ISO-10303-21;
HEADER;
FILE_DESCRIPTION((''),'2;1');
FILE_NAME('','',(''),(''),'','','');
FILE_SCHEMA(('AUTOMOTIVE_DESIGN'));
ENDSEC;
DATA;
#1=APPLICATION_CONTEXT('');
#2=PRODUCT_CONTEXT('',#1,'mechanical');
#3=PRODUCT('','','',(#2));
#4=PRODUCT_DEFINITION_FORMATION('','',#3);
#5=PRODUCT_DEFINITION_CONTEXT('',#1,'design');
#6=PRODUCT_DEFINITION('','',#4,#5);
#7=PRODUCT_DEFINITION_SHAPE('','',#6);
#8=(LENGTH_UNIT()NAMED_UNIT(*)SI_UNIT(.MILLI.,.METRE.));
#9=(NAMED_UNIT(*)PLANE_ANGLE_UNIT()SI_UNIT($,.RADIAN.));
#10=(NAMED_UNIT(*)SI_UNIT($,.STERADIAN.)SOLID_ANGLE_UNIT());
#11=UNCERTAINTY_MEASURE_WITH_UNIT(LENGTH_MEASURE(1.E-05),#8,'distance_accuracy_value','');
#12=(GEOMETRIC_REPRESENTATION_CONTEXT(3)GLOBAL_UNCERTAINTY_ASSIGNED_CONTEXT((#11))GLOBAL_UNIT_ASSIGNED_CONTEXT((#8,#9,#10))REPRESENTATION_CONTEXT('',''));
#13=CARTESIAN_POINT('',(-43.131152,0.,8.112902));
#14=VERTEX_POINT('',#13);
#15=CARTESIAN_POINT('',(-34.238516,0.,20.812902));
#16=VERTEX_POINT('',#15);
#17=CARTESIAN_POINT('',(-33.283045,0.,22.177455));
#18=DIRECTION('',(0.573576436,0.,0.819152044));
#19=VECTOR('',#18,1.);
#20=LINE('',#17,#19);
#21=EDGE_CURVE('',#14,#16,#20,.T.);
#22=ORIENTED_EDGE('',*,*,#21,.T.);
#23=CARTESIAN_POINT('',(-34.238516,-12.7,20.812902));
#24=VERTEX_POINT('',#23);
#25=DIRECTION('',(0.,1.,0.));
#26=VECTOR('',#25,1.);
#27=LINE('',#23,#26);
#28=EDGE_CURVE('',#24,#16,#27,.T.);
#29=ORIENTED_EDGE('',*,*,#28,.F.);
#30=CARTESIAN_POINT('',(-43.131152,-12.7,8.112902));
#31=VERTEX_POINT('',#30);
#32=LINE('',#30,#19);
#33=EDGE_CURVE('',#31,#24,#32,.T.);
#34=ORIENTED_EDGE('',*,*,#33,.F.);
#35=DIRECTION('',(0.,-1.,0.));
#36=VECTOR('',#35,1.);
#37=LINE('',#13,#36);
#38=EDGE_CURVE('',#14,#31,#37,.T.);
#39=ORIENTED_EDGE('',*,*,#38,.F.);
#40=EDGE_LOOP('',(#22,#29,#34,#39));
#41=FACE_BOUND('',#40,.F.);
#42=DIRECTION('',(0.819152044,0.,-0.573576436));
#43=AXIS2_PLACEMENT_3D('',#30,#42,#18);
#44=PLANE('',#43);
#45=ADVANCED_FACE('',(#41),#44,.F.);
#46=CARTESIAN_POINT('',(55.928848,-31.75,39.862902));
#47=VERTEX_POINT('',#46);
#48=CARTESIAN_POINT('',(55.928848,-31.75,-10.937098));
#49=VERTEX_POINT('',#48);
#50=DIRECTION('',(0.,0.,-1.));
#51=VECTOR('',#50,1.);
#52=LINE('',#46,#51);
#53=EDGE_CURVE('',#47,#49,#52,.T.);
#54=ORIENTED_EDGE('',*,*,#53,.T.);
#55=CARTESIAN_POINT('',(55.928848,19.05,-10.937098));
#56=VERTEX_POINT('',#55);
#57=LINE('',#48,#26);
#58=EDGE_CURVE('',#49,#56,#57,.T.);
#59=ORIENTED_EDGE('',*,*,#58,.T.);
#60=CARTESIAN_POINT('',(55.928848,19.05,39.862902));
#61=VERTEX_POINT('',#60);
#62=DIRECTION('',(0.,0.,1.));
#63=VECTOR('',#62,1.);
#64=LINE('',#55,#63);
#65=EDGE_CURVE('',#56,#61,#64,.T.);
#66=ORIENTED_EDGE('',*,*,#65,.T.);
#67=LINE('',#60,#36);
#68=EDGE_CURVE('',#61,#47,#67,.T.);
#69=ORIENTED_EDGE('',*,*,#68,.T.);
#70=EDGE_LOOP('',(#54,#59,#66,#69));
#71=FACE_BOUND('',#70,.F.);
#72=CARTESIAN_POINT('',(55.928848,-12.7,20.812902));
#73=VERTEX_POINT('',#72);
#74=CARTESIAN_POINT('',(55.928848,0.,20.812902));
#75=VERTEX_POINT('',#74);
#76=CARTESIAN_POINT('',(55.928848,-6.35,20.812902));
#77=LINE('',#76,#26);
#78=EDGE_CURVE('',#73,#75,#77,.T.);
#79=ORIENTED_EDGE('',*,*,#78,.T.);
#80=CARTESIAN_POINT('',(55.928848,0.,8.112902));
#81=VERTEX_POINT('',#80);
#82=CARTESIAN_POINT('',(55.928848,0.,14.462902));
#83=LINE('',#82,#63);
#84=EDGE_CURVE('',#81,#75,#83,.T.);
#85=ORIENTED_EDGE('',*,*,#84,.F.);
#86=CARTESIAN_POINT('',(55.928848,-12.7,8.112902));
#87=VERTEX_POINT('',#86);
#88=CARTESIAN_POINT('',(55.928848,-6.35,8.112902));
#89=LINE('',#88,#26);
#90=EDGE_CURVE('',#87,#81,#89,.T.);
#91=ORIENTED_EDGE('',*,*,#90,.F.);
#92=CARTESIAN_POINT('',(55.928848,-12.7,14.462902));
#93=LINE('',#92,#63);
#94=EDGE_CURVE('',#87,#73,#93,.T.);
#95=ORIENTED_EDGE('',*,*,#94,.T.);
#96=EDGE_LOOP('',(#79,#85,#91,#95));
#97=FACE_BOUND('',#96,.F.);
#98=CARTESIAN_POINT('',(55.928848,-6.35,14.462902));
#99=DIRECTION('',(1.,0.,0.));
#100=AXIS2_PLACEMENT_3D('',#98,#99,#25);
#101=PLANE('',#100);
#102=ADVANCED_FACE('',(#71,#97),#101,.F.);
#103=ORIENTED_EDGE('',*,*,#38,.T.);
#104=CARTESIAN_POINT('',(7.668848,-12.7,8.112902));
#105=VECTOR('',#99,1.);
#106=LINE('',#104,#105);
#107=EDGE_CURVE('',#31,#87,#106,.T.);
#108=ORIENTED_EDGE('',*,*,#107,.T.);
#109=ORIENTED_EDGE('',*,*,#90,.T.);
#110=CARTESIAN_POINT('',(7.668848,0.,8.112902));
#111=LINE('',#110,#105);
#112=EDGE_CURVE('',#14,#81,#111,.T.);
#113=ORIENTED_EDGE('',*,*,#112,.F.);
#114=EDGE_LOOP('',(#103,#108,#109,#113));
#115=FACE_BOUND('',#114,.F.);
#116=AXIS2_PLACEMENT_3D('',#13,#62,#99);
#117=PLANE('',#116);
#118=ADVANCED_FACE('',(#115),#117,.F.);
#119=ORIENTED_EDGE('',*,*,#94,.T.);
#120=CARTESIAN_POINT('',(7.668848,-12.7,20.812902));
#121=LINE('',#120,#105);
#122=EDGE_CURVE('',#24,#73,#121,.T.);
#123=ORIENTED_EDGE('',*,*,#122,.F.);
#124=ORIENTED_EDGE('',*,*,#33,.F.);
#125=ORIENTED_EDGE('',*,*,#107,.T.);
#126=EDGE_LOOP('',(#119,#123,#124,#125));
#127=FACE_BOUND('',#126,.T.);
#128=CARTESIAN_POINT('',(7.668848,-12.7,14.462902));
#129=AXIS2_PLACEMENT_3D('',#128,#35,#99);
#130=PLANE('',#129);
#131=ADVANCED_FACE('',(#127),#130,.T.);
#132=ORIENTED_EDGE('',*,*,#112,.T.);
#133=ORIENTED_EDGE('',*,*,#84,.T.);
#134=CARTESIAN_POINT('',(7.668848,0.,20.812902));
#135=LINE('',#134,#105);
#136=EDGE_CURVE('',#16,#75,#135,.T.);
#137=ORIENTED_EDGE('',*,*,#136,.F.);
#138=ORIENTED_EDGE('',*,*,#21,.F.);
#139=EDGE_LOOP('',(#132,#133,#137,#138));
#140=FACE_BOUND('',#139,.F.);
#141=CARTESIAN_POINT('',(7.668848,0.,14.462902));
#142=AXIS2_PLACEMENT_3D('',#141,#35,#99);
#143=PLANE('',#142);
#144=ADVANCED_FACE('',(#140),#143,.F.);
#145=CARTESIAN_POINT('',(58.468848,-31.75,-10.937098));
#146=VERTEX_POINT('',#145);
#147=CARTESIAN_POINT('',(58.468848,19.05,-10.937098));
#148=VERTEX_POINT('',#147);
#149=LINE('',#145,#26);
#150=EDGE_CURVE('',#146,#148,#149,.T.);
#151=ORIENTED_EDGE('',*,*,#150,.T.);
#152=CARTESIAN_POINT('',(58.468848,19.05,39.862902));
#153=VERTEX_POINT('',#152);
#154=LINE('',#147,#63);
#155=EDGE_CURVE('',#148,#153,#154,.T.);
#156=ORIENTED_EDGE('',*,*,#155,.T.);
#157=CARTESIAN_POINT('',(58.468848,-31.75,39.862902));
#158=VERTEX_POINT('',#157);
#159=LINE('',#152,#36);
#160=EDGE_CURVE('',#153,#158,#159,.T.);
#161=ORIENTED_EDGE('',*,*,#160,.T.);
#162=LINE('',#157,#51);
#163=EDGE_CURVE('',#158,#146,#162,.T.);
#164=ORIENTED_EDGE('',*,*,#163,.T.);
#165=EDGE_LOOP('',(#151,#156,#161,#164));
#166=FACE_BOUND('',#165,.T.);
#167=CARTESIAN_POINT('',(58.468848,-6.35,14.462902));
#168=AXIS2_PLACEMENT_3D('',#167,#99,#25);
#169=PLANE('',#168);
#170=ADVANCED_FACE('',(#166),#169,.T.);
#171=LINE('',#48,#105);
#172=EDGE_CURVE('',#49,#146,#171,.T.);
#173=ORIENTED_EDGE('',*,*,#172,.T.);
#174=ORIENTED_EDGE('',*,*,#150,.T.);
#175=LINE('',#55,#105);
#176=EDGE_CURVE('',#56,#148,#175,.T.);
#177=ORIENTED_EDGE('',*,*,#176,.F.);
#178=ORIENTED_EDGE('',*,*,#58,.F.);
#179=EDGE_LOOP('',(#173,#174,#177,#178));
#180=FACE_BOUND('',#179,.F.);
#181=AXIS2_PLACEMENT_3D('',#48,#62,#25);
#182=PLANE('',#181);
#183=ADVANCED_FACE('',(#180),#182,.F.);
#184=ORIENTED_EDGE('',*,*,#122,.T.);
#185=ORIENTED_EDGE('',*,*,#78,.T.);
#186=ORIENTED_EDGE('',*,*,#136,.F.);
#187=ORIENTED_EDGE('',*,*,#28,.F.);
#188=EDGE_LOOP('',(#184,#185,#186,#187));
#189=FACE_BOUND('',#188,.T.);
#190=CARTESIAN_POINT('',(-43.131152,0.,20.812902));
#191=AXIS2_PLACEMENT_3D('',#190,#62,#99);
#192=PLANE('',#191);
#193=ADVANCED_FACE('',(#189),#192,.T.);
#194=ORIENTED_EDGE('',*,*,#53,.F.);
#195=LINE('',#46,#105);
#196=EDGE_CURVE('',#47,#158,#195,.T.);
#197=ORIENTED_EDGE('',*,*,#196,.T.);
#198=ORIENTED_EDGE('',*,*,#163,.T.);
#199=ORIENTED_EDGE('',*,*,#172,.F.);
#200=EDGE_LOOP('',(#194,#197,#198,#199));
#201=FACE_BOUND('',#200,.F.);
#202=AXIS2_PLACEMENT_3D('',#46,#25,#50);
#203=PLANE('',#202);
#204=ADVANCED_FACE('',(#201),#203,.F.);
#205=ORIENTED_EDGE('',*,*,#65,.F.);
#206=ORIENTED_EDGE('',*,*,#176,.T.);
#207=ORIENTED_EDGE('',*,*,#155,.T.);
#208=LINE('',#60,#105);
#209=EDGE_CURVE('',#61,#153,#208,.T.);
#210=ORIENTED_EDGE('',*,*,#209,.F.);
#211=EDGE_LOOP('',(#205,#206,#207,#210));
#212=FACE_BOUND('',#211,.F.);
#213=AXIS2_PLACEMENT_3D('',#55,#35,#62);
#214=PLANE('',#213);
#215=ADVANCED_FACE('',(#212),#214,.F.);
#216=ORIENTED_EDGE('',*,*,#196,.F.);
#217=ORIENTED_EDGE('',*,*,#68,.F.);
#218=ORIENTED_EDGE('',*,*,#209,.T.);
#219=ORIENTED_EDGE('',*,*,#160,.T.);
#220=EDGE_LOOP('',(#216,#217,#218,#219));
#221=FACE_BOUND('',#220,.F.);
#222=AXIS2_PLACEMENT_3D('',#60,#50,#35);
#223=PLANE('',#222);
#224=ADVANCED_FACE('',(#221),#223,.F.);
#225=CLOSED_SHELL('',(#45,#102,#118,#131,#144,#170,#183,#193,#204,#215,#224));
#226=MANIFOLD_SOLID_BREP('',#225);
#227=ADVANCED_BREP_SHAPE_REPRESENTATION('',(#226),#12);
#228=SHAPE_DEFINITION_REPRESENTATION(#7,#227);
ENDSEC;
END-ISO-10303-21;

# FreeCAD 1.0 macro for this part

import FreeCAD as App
import Part
import Sketcher
Q = App.Units.Quantity

doc = App.newDocument("Part")
body = doc.addObject("PartDesign::Body", "Body")

# Sketch on XZ plane
sketch1 = body.newObject("Sketcher::SketchObject", "Sketch")
sketch1.AttachmentSupport = (doc.getObject("XZ_Plane"), [""])
sketch1.MapMode = "FlatFace"
sketch1.addGeometry([
    Part.LineSegment(App.Vector(-43.131152, 20.812902, 0), App.Vector(-43.131152, 8.112902, 0)),
    Part.LineSegment(App.Vector(-43.131152, 8.112902, 0), App.Vector(58.468848, 8.112902, 0)),
    Part.LineSegment(App.Vector(58.468848, 8.112902, 0), App.Vector(58.468848, 20.812902, 0)),
    Part.LineSegment(App.Vector(58.468848, 20.812902, 0), App.Vector(-43.131152, 20.812902, 0)),
], False)
sketch1.addConstraint([
    Sketcher.Constraint("Coincident", 0, 2, 1, 1),
    Sketcher.Constraint("Coincident", 1, 2, 2, 1),
    Sketcher.Constraint("Coincident", 2, 2, 3, 1),
    Sketcher.Constraint("Coincident", 3, 2, 0, 1),
    Sketcher.Constraint("Vertical", 0),
    Sketcher.Constraint("Horizontal", 1),
    Sketcher.Constraint("Vertical", 2),
    Sketcher.Constraint("Horizontal", 3),
    Sketcher.Constraint("DistanceX", 1, 1, 1, 2, Q("4 in")),
    Sketcher.Constraint("DistanceY", 0, 2, 0, 1, Q("0.5 in")),
    Sketcher.Constraint("DistanceY", -1, 1, 0, 2, 8.112902),
    Sketcher.Constraint("DistanceX", 0, 2, -1, 1, 43.131152),
])
pad1 = body.newObject("PartDesign::Pad", "Pad")
pad1.Profile = sketch1
pad1.Length = Q("0.5 in")

# Sketch on XZ plane
sketch2 = body.newObject("Sketcher::SketchObject", "Sketch001")
sketch2.AttachmentSupport = (doc.getObject("XZ_Plane"), [""])
sketch2.MapMode = "FlatFace"
sketch2.AttachmentOffset = App.Placement(App.Vector(0, 0, 0.5 * 25.4), App.Rotation())
sketch2.addGeometry([
    Part.LineSegment(App.Vector(-43.131152, 20.812902, 0), App.Vector(-43.131152, 8.112902, 0)),
    Part.LineSegment(App.Vector(-43.131152, 8.112902, 0), App.Vector(-34.238516, 20.812902, 0)),
    Part.LineSegment(App.Vector(-34.238516, 20.812902, 0), App.Vector(-43.131152, 20.812902, 0)),
], False)
sketch2.addConstraint([
    Sketcher.Constraint("Coincident", 0, 2, 1, 1),
    Sketcher.Constraint("Coincident", 1, 2, 2, 1),
    Sketcher.Constraint("Coincident", 2, 2, 0, 1),
    Sketcher.Constraint("Vertical", 0),
    Sketcher.Constraint("Horizontal", 2),
    Sketcher.Constraint("DistanceY", 0, 2, 0, 1, Q("0.5 in")),
    Sketcher.Constraint("Angle", 1, Q("55 deg")),
    Sketcher.Constraint("DistanceY", -1, 1, 0, 2, 8.112902),
    Sketcher.Constraint("DistanceX", 0, 2, -1, 1, 43.131152),
])
pocket1 = body.newObject("PartDesign::Pocket", "Pocket")
pocket1.Profile = sketch2
pocket1.Length = Q("1 in")

# Sketch on YZ plane
sketch3 = body.newObject("Sketcher::SketchObject", "Sketch002")
sketch3.AttachmentSupport = (doc.getObject("YZ_Plane"), [""])
sketch3.MapMode = "FlatFace"
sketch3.AttachmentOffset = App.Placement(App.Vector(0, 0, 58.468848), App.Rotation())
sketch3.addGeometry([
    Part.LineSegment(App.Vector(-12.7, 20.812902, 0), App.Vector(-12.7, 8.112902, 0)),
    Part.LineSegment(App.Vector(-12.7, 8.112902, 0), App.Vector(0, 8.112902, 0)),
    Part.LineSegment(App.Vector(0, 8.112902, 0), App.Vector(0, 20.812902, 0)),
    Part.LineSegment(App.Vector(0, 20.812902, 0), App.Vector(-12.7, 20.812902, 0)),
], False)
sketch3.addConstraint([
    Sketcher.Constraint("Coincident", 0, 2, 1, 1),
    Sketcher.Constraint("Coincident", 1, 2, 2, 1),
    Sketcher.Constraint("Coincident", 2, 2, 3, 1),
    Sketcher.Constraint("Coincident", 3, 2, 0, 1),
    Sketcher.Constraint("Vertical", 0),
    Sketcher.Constraint("Horizontal", 1),
    Sketcher.Constraint("Vertical", 2),
    Sketcher.Constraint("Horizontal", 3),
    Sketcher.Constraint("PointOnObject", 1, 2, -2),
    Sketcher.Constraint("Equal", 3, 0),
    Sketcher.Constraint("DistanceX", 1, 1, 1, 2, Q("0.5 in")),
    Sketcher.Constraint("DistanceY", -1, 1, 0, 2, 8.112902),
])
pocket2 = body.newObject("PartDesign::Pocket", "Pocket001")
pocket2.Profile = sketch3
pocket2.Length = Q("0.1 in")

# Sketch on YZ plane
sketch4 = body.newObject("Sketcher::SketchObject", "Sketch003")
sketch4.AttachmentSupport = (doc.getObject("YZ_Plane"), [""])
sketch4.MapMode = "FlatFace"
sketch4.AttachmentOffset = App.Placement(App.Vector(0, 0, 55.928848), App.Rotation())
sketch4.addGeometry([
    Part.LineSegment(App.Vector(-31.75, 39.862902, 0), App.Vector(-31.75, -10.937098, 0)),
    Part.LineSegment(App.Vector(-31.75, -10.937098, 0), App.Vector(19.05, -10.937098, 0)),
    Part.LineSegment(App.Vector(19.05, -10.937098, 0), App.Vector(19.05, 39.862902, 0)),
    Part.LineSegment(App.Vector(19.05, 39.862902, 0), App.Vector(-31.75, 39.862902, 0)),
], False)
sketch4.addConstraint([
    Sketcher.Constraint("Coincident", 0, 2, 1, 1),
    Sketcher.Constraint("Coincident", 1, 2, 2, 1),
    Sketcher.Constraint("Coincident", 2, 2, 3, 1),
    Sketcher.Constraint("Coincident", 3, 2, 0, 1),
    Sketcher.Constraint("Vertical", 0),
    Sketcher.Constraint("Horizontal", 1),
    Sketcher.Constraint("Vertical", 2),
    Sketcher.Constraint("Horizontal", 3),
    Sketcher.Constraint("Equal", 3, 0),
    Sketcher.Constraint("DistanceX", 1, 1, 1, 2, Q("2 in")),
    Sketcher.Constraint("DistanceX", 0, 2, -1, 1, Q("1.25 in")),
    Sketcher.Constraint("DistanceY", 0, 2, -1, 1, 10.937098),
])
pad2 = body.newObject("PartDesign::Pad", "Pad001")
pad2.Profile = sketch4
pad2.Length = Q("0.1 in")

doc.recompute()
